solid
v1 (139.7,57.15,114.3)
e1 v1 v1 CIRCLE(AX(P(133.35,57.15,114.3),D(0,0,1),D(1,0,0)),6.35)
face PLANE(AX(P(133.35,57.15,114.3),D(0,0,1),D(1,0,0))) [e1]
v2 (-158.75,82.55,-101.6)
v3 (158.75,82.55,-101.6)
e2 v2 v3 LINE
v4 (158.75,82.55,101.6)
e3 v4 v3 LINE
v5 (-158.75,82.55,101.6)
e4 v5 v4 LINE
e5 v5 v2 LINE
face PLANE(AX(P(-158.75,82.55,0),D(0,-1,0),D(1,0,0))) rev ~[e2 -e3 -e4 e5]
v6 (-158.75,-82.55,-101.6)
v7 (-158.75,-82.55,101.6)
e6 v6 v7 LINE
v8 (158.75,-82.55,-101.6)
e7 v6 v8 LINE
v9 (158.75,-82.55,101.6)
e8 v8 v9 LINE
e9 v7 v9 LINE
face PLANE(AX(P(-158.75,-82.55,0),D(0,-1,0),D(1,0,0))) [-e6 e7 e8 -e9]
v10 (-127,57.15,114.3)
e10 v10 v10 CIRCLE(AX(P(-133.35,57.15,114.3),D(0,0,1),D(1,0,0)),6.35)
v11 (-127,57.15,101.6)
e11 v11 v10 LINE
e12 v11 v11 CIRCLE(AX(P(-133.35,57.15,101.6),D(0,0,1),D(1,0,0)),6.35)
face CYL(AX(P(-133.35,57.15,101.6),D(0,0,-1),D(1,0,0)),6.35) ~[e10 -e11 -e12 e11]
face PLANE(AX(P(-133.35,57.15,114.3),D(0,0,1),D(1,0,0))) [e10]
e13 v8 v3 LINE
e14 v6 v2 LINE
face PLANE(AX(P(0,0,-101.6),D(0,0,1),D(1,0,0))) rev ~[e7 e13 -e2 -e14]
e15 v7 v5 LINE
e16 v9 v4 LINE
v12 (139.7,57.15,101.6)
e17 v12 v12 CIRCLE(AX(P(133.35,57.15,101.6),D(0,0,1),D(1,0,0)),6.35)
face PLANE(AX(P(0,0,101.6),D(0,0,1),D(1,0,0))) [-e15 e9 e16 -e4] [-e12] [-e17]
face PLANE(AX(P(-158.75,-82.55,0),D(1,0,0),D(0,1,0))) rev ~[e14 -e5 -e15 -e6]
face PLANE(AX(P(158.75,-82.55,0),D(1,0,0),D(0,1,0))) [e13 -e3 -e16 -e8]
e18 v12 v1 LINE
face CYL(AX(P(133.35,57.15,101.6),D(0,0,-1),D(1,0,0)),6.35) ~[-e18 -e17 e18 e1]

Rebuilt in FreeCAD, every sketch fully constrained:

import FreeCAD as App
import Part
import Sketcher

V = App.Vector
Q = App.Units.Quantity

doc = App.newDocument("Part")
body = doc.addObject("PartDesign::Body", "Body")

# Sketch on XY plane
sketch1 = body.newObject("Sketcher::SketchObject", "Sketch")
sketch1.AttachmentSupport = (doc.getObject("XY_Plane"), [""])
sketch1.MapMode = "FlatFace"
sketch1.addGeometry(Part.LineSegment(V(-158.75, 82.55, 0), V(-158.75, -82.55, 0)), False)
sketch1.addGeometry(Part.LineSegment(V(-158.75, -82.55, 0), V(158.75, -82.55, 0)), False)
sketch1.addGeometry(Part.LineSegment(V(158.75, -82.55, 0), V(158.75, 82.55, 0)), False)
sketch1.addGeometry(Part.LineSegment(V(158.75, 82.55, 0), V(-158.75, 82.55, 0)), False)
sketch1.addConstraint(Sketcher.Constraint("Coincident", 0, 2, 1, 1))
sketch1.addConstraint(Sketcher.Constraint("Coincident", 1, 2, 2, 1))
sketch1.addConstraint(Sketcher.Constraint("Coincident", 2, 2, 3, 1))
sketch1.addConstraint(Sketcher.Constraint("Coincident", 3, 2, 0, 1))
sketch1.addConstraint(Sketcher.Constraint("Vertical", 0))
sketch1.addConstraint(Sketcher.Constraint("Horizontal", 1))
sketch1.addConstraint(Sketcher.Constraint("Vertical", 2))
sketch1.addConstraint(Sketcher.Constraint("Horizontal", 3))
sketch1.addConstraint(Sketcher.Constraint("Symmetric", 0, 2, 2, 2, -1, 1))
sketch1.addConstraint(Sketcher.Constraint("DistanceX", 1, 1, 1, 2, Q("12.5 in")))
sketch1.addConstraint(Sketcher.Constraint("DistanceY", 0, 2, 0, 1, Q("6.5 in")))
pad1 = body.newObject("PartDesign::Pad", "Pad")
pad1.Profile = sketch1
pad1.Length = Q("8 in")
pad1.Midplane = True

# Sketch on XY plane
sketch2 = body.newObject("Sketcher::SketchObject", "Sketch001")
sketch2.AttachmentSupport = (doc.getObject("XY_Plane"), [""])
sketch2.MapMode = "FlatFace"
sketch2.AttachmentOffset = App.Placement(V(0, 0, 4 * 25.4), App.Rotation())
sketch2.addGeometry(Part.Circle(V(-133.35, 57.15, 0), V(0, 0, 1), 6.35), False)
sketch2.addGeometry(Part.Circle(V(133.35, 57.15, 0), V(0, 0, 1), 6.35), False)
sketch2.addConstraint(Sketcher.Constraint("Equal", 0, 1))
sketch2.addConstraint(Sketcher.Constraint("Symmetric", 0, 3, 1, 3, -2))
sketch2.addConstraint(Sketcher.Constraint("Diameter", 0, Q("0.5 in")))
sketch2.addConstraint(Sketcher.Constraint("DistanceX", 0, 3, 1, 3, Q("10.5 in")))
sketch2.addConstraint(Sketcher.Constraint("DistanceY", -1, 1, 0, 3, Q("2.25 in")))
pad2 = body.newObject("PartDesign::Pad", "Pad001")
pad2.Profile = sketch2
pad2.Length = Q("0.5 in")

doc.recompute()
